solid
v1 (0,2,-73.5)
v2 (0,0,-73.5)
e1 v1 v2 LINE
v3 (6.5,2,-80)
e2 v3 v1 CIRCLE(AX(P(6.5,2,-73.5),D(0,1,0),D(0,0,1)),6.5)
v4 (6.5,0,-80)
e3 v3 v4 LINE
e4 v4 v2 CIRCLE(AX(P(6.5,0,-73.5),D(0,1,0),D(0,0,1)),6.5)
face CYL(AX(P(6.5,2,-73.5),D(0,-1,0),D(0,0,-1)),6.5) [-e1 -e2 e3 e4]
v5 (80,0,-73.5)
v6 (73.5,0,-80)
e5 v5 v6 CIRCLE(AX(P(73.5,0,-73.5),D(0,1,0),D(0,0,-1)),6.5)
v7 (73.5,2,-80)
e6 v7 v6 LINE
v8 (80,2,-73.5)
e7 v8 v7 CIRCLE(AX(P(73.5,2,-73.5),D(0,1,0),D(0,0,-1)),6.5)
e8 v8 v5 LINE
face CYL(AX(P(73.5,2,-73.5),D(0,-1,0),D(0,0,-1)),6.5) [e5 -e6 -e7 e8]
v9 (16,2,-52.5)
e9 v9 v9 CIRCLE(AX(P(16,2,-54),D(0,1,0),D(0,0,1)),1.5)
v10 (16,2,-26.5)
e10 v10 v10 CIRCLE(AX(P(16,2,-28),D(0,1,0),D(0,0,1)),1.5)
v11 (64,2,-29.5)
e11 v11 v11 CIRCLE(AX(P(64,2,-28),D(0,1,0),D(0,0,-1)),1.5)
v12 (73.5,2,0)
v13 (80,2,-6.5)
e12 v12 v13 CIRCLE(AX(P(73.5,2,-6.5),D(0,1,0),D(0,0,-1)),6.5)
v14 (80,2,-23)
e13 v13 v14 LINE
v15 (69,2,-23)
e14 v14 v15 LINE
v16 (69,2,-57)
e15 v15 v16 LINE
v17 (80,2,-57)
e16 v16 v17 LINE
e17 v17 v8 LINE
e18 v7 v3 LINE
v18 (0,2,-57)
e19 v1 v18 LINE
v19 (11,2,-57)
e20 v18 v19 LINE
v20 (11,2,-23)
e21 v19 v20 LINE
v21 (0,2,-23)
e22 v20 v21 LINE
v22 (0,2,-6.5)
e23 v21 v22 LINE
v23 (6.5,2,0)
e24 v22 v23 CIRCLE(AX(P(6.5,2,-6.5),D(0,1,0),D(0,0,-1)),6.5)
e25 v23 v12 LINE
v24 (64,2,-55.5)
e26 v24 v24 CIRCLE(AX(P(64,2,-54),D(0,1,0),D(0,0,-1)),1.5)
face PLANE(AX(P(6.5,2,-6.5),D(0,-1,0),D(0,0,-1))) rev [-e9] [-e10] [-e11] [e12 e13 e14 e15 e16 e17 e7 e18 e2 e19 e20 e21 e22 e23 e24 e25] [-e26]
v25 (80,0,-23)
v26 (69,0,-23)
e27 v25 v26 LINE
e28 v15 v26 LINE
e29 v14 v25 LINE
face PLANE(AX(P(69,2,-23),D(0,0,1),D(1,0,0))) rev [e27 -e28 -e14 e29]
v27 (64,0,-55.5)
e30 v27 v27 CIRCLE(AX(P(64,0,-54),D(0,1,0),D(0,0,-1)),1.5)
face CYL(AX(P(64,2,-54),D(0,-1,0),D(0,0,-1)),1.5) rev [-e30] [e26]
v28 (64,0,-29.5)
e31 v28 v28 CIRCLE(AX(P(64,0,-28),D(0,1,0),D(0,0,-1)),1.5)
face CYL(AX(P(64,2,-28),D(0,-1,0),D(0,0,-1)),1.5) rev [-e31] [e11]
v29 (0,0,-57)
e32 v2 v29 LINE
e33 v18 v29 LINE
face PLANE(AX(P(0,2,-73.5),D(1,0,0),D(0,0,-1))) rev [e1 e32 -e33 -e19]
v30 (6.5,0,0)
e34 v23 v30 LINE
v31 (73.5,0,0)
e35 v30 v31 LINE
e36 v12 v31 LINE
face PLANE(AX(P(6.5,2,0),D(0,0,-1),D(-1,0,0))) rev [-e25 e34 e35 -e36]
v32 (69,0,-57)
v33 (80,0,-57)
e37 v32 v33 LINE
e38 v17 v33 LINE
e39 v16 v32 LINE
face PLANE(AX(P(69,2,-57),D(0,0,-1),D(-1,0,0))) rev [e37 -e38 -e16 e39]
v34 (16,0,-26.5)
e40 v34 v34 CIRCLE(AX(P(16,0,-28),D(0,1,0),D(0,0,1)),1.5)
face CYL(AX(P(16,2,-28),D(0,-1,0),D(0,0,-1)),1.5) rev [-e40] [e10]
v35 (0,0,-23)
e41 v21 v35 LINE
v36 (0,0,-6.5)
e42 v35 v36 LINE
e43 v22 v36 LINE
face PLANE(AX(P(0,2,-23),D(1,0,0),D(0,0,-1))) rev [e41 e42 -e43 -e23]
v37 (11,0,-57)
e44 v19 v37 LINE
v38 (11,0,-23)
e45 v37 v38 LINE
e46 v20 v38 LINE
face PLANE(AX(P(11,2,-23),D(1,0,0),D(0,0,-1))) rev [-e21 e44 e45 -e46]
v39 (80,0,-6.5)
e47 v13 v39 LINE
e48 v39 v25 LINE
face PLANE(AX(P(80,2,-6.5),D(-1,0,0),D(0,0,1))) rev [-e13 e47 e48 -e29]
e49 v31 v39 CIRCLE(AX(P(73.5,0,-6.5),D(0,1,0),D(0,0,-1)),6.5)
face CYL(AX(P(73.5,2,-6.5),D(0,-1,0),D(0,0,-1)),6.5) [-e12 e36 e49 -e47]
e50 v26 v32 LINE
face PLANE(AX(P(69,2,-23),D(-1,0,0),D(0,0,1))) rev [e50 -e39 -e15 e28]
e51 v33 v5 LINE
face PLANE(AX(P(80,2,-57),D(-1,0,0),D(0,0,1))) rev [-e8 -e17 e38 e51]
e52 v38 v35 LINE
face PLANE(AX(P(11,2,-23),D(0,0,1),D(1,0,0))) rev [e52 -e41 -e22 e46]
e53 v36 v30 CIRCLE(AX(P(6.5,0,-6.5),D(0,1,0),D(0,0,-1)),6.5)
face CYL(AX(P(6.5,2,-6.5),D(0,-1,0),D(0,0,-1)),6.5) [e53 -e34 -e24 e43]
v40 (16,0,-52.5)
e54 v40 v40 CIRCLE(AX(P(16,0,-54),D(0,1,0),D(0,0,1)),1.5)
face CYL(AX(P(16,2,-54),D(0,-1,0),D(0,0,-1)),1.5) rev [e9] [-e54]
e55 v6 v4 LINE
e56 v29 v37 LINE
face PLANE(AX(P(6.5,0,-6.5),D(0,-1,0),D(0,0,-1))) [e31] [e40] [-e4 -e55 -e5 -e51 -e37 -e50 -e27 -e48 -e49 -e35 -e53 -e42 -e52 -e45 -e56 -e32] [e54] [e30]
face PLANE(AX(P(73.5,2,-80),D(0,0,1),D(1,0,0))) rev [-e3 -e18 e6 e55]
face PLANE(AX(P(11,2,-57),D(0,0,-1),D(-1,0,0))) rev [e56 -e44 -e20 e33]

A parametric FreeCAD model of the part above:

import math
import FreeCAD as App
import Part
import Sketcher
Q = App.Units.Quantity

doc = App.newDocument("Part")
body = doc.addObject("PartDesign::Body", "Body")

# Sketch on XZ plane
sketch1 = body.newObject("Sketcher::SketchObject", "Sketch")
sketch1.AttachmentSupport = (doc.getObject("XZ_Plane"), [""])
sketch1.MapMode = "FlatFace"
sketch1.addGeometry([
    Part.LineSegment(App.Vector(6.5, 0, 0), App.Vector(73.5, 0, 0)),  # 0
    Part.ArcOfCircle(Part.Circle(App.Vector(73.5, -6.5, 0), App.Vector(0, 0, 1), 6.5), math.radians(0), math.radians(90)),  # 1
    Part.LineSegment(App.Vector(80, -6.5, 0), App.Vector(80, -23, 0)),  # 2
    Part.LineSegment(App.Vector(80, -23, 0), App.Vector(69, -23, 0)),  # 3
    Part.LineSegment(App.Vector(69, -23, 0), App.Vector(69, -57, 0)),  # 4
    Part.LineSegment(App.Vector(69, -57, 0), App.Vector(80, -57, 0)),  # 5
    Part.LineSegment(App.Vector(80, -57, 0), App.Vector(80, -73.5, 0)),  # 6
    Part.ArcOfCircle(Part.Circle(App.Vector(73.5, -73.5, 0), App.Vector(0, 0, 1), 6.5), math.radians(-90), math.radians(0)),  # 7
    Part.LineSegment(App.Vector(73.5, -80, 0), App.Vector(6.5, -80, 0)),  # 8
    Part.ArcOfCircle(Part.Circle(App.Vector(6.5, -73.5, 0), App.Vector(0, 0, 1), 6.5), math.radians(180), math.radians(270)),  # 9
    Part.LineSegment(App.Vector(0, -73.5, 0), App.Vector(0, -57, 0)),  # 10
    Part.LineSegment(App.Vector(0, -57, 0), App.Vector(11, -57, 0)),  # 11
    Part.LineSegment(App.Vector(11, -57, 0), App.Vector(11, -23, 0)),  # 12
    Part.LineSegment(App.Vector(11, -23, 0), App.Vector(0, -23, 0)),  # 13
    Part.LineSegment(App.Vector(0, -23, 0), App.Vector(0, -6.5, 0)),  # 14
    Part.ArcOfCircle(Part.Circle(App.Vector(6.5, -6.5, 0), App.Vector(0, 0, 1), 6.5), math.radians(90), math.radians(180)),  # 15
    Part.Circle(App.Vector(16, -28, 0), App.Vector(0, 0, 1), 1.5),  # 16
    Part.Circle(App.Vector(64, -28, 0), App.Vector(0, 0, 1), 1.5),  # 17
    Part.Circle(App.Vector(16, -54, 0), App.Vector(0, 0, 1), 1.5),  # 18
    Part.Circle(App.Vector(64, -54, 0), App.Vector(0, 0, 1), 1.5),  # 19
], False)
sketch1.addConstraint([
    Sketcher.Constraint("Tangent", 0, 2, 1, 2),
    Sketcher.Constraint("Tangent", 1, 1, 2, 1),
    Sketcher.Constraint("Coincident", 2, 2, 3, 1),
    Sketcher.Constraint("Coincident", 3, 2, 4, 1),
    Sketcher.Constraint("Coincident", 4, 2, 5, 1),
    Sketcher.Constraint("Coincident", 5, 2, 6, 1),
    Sketcher.Constraint("Tangent", 6, 2, 7, 2),
    Sketcher.Constraint("Tangent", 7, 1, 8, 1),
    Sketcher.Constraint("Tangent", 8, 2, 9, 2),
    Sketcher.Constraint("Tangent", 9, 1, 10, 1),
    Sketcher.Constraint("Coincident", 10, 2, 11, 1),
    Sketcher.Constraint("Coincident", 11, 2, 12, 1),
    Sketcher.Constraint("Coincident", 12, 2, 13, 1),
    Sketcher.Constraint("Coincident", 13, 2, 14, 1),
    Sketcher.Constraint("Tangent", 14, 2, 15, 2),
    Sketcher.Constraint("Tangent", 15, 1, 0, 1),
    Sketcher.Constraint("Horizontal", 0),
    Sketcher.Constraint("Vertical", 2),
    Sketcher.Constraint("Horizontal", 3),
    Sketcher.Constraint("Vertical", 4),
    Sketcher.Constraint("Horizontal", 5),
    Sketcher.Constraint("Vertical", 6),
    Sketcher.Constraint("Horizontal", 8),
    Sketcher.Constraint("Vertical", 10),
    Sketcher.Constraint("Horizontal", 11),
    Sketcher.Constraint("Vertical", 12),
    Sketcher.Constraint("Horizontal", 13),
    Sketcher.Constraint("Vertical", 14),
    Sketcher.Constraint("Equal", 1, 7),
    Sketcher.Constraint("Equal", 7, 9),
    Sketcher.Constraint("Equal", 9, 15),
    Sketcher.Constraint("Equal", 16, 17),
    Sketcher.Constraint("Equal", 17, 18),
    Sketcher.Constraint("Equal", 18, 19),
    Sketcher.Constraint("PointOnObject", 0, 2, -1),
    Sketcher.Constraint("PointOnObject", 9, 1, -2),
    Sketcher.Constraint("PointOnObject", 13, 2, -2),
    Sketcher.Constraint("Horizontal", 16, 3, 17, 3),
    Sketcher.Constraint("Horizontal", 18, 3, 19, 3),
    Sketcher.Constraint("Horizontal", 5, 2, 10, 2),
    Sketcher.Constraint("Horizontal", 3, 2, 12, 2),
    Sketcher.Constraint("Vertical", 1, 3, 7, 3),
    Sketcher.Constraint("Vertical", 16, 3, 18, 3),
    Sketcher.Constraint("Vertical", 17, 3, 19, 3),
    Sketcher.Constraint("Equal", 5, 11),
    Sketcher.Constraint("Equal", 2, 6),
    Sketcher.Constraint("Diameter", 16, Q("3 mm")),
    Sketcher.Constraint("Radius", 1, Q("6.5 mm")),
    Sketcher.Constraint("DistanceX", 0, 1, 0, 2, Q("67 mm")),
    Sketcher.Constraint("DistanceX", 3, 2, 3, 1, Q("11 mm")),
    Sketcher.Constraint("DistanceY", 4, 2, 4, 1, Q("34 mm")),
    Sketcher.Constraint("DistanceY", 2, 2, 2, 1, Q("16.5 mm")),
    Sketcher.Constraint("DistanceX", -1, 1, 16, 3, Q("16 mm")),
    Sketcher.Constraint("DistanceY", 16, 3, -1, 1, Q("28 mm")),
    Sketcher.Constraint("DistanceX", -1, 1, 17, 3, Q("64 mm")),
    Sketcher.Constraint("DistanceY", 18, 3, -1, 1, Q("54 mm")),
])
pad1 = body.newObject("PartDesign::Pad", "Pad")
pad1.Profile = sketch1
pad1.Length = 2
pad1.Reversed = True

doc.recompute()
